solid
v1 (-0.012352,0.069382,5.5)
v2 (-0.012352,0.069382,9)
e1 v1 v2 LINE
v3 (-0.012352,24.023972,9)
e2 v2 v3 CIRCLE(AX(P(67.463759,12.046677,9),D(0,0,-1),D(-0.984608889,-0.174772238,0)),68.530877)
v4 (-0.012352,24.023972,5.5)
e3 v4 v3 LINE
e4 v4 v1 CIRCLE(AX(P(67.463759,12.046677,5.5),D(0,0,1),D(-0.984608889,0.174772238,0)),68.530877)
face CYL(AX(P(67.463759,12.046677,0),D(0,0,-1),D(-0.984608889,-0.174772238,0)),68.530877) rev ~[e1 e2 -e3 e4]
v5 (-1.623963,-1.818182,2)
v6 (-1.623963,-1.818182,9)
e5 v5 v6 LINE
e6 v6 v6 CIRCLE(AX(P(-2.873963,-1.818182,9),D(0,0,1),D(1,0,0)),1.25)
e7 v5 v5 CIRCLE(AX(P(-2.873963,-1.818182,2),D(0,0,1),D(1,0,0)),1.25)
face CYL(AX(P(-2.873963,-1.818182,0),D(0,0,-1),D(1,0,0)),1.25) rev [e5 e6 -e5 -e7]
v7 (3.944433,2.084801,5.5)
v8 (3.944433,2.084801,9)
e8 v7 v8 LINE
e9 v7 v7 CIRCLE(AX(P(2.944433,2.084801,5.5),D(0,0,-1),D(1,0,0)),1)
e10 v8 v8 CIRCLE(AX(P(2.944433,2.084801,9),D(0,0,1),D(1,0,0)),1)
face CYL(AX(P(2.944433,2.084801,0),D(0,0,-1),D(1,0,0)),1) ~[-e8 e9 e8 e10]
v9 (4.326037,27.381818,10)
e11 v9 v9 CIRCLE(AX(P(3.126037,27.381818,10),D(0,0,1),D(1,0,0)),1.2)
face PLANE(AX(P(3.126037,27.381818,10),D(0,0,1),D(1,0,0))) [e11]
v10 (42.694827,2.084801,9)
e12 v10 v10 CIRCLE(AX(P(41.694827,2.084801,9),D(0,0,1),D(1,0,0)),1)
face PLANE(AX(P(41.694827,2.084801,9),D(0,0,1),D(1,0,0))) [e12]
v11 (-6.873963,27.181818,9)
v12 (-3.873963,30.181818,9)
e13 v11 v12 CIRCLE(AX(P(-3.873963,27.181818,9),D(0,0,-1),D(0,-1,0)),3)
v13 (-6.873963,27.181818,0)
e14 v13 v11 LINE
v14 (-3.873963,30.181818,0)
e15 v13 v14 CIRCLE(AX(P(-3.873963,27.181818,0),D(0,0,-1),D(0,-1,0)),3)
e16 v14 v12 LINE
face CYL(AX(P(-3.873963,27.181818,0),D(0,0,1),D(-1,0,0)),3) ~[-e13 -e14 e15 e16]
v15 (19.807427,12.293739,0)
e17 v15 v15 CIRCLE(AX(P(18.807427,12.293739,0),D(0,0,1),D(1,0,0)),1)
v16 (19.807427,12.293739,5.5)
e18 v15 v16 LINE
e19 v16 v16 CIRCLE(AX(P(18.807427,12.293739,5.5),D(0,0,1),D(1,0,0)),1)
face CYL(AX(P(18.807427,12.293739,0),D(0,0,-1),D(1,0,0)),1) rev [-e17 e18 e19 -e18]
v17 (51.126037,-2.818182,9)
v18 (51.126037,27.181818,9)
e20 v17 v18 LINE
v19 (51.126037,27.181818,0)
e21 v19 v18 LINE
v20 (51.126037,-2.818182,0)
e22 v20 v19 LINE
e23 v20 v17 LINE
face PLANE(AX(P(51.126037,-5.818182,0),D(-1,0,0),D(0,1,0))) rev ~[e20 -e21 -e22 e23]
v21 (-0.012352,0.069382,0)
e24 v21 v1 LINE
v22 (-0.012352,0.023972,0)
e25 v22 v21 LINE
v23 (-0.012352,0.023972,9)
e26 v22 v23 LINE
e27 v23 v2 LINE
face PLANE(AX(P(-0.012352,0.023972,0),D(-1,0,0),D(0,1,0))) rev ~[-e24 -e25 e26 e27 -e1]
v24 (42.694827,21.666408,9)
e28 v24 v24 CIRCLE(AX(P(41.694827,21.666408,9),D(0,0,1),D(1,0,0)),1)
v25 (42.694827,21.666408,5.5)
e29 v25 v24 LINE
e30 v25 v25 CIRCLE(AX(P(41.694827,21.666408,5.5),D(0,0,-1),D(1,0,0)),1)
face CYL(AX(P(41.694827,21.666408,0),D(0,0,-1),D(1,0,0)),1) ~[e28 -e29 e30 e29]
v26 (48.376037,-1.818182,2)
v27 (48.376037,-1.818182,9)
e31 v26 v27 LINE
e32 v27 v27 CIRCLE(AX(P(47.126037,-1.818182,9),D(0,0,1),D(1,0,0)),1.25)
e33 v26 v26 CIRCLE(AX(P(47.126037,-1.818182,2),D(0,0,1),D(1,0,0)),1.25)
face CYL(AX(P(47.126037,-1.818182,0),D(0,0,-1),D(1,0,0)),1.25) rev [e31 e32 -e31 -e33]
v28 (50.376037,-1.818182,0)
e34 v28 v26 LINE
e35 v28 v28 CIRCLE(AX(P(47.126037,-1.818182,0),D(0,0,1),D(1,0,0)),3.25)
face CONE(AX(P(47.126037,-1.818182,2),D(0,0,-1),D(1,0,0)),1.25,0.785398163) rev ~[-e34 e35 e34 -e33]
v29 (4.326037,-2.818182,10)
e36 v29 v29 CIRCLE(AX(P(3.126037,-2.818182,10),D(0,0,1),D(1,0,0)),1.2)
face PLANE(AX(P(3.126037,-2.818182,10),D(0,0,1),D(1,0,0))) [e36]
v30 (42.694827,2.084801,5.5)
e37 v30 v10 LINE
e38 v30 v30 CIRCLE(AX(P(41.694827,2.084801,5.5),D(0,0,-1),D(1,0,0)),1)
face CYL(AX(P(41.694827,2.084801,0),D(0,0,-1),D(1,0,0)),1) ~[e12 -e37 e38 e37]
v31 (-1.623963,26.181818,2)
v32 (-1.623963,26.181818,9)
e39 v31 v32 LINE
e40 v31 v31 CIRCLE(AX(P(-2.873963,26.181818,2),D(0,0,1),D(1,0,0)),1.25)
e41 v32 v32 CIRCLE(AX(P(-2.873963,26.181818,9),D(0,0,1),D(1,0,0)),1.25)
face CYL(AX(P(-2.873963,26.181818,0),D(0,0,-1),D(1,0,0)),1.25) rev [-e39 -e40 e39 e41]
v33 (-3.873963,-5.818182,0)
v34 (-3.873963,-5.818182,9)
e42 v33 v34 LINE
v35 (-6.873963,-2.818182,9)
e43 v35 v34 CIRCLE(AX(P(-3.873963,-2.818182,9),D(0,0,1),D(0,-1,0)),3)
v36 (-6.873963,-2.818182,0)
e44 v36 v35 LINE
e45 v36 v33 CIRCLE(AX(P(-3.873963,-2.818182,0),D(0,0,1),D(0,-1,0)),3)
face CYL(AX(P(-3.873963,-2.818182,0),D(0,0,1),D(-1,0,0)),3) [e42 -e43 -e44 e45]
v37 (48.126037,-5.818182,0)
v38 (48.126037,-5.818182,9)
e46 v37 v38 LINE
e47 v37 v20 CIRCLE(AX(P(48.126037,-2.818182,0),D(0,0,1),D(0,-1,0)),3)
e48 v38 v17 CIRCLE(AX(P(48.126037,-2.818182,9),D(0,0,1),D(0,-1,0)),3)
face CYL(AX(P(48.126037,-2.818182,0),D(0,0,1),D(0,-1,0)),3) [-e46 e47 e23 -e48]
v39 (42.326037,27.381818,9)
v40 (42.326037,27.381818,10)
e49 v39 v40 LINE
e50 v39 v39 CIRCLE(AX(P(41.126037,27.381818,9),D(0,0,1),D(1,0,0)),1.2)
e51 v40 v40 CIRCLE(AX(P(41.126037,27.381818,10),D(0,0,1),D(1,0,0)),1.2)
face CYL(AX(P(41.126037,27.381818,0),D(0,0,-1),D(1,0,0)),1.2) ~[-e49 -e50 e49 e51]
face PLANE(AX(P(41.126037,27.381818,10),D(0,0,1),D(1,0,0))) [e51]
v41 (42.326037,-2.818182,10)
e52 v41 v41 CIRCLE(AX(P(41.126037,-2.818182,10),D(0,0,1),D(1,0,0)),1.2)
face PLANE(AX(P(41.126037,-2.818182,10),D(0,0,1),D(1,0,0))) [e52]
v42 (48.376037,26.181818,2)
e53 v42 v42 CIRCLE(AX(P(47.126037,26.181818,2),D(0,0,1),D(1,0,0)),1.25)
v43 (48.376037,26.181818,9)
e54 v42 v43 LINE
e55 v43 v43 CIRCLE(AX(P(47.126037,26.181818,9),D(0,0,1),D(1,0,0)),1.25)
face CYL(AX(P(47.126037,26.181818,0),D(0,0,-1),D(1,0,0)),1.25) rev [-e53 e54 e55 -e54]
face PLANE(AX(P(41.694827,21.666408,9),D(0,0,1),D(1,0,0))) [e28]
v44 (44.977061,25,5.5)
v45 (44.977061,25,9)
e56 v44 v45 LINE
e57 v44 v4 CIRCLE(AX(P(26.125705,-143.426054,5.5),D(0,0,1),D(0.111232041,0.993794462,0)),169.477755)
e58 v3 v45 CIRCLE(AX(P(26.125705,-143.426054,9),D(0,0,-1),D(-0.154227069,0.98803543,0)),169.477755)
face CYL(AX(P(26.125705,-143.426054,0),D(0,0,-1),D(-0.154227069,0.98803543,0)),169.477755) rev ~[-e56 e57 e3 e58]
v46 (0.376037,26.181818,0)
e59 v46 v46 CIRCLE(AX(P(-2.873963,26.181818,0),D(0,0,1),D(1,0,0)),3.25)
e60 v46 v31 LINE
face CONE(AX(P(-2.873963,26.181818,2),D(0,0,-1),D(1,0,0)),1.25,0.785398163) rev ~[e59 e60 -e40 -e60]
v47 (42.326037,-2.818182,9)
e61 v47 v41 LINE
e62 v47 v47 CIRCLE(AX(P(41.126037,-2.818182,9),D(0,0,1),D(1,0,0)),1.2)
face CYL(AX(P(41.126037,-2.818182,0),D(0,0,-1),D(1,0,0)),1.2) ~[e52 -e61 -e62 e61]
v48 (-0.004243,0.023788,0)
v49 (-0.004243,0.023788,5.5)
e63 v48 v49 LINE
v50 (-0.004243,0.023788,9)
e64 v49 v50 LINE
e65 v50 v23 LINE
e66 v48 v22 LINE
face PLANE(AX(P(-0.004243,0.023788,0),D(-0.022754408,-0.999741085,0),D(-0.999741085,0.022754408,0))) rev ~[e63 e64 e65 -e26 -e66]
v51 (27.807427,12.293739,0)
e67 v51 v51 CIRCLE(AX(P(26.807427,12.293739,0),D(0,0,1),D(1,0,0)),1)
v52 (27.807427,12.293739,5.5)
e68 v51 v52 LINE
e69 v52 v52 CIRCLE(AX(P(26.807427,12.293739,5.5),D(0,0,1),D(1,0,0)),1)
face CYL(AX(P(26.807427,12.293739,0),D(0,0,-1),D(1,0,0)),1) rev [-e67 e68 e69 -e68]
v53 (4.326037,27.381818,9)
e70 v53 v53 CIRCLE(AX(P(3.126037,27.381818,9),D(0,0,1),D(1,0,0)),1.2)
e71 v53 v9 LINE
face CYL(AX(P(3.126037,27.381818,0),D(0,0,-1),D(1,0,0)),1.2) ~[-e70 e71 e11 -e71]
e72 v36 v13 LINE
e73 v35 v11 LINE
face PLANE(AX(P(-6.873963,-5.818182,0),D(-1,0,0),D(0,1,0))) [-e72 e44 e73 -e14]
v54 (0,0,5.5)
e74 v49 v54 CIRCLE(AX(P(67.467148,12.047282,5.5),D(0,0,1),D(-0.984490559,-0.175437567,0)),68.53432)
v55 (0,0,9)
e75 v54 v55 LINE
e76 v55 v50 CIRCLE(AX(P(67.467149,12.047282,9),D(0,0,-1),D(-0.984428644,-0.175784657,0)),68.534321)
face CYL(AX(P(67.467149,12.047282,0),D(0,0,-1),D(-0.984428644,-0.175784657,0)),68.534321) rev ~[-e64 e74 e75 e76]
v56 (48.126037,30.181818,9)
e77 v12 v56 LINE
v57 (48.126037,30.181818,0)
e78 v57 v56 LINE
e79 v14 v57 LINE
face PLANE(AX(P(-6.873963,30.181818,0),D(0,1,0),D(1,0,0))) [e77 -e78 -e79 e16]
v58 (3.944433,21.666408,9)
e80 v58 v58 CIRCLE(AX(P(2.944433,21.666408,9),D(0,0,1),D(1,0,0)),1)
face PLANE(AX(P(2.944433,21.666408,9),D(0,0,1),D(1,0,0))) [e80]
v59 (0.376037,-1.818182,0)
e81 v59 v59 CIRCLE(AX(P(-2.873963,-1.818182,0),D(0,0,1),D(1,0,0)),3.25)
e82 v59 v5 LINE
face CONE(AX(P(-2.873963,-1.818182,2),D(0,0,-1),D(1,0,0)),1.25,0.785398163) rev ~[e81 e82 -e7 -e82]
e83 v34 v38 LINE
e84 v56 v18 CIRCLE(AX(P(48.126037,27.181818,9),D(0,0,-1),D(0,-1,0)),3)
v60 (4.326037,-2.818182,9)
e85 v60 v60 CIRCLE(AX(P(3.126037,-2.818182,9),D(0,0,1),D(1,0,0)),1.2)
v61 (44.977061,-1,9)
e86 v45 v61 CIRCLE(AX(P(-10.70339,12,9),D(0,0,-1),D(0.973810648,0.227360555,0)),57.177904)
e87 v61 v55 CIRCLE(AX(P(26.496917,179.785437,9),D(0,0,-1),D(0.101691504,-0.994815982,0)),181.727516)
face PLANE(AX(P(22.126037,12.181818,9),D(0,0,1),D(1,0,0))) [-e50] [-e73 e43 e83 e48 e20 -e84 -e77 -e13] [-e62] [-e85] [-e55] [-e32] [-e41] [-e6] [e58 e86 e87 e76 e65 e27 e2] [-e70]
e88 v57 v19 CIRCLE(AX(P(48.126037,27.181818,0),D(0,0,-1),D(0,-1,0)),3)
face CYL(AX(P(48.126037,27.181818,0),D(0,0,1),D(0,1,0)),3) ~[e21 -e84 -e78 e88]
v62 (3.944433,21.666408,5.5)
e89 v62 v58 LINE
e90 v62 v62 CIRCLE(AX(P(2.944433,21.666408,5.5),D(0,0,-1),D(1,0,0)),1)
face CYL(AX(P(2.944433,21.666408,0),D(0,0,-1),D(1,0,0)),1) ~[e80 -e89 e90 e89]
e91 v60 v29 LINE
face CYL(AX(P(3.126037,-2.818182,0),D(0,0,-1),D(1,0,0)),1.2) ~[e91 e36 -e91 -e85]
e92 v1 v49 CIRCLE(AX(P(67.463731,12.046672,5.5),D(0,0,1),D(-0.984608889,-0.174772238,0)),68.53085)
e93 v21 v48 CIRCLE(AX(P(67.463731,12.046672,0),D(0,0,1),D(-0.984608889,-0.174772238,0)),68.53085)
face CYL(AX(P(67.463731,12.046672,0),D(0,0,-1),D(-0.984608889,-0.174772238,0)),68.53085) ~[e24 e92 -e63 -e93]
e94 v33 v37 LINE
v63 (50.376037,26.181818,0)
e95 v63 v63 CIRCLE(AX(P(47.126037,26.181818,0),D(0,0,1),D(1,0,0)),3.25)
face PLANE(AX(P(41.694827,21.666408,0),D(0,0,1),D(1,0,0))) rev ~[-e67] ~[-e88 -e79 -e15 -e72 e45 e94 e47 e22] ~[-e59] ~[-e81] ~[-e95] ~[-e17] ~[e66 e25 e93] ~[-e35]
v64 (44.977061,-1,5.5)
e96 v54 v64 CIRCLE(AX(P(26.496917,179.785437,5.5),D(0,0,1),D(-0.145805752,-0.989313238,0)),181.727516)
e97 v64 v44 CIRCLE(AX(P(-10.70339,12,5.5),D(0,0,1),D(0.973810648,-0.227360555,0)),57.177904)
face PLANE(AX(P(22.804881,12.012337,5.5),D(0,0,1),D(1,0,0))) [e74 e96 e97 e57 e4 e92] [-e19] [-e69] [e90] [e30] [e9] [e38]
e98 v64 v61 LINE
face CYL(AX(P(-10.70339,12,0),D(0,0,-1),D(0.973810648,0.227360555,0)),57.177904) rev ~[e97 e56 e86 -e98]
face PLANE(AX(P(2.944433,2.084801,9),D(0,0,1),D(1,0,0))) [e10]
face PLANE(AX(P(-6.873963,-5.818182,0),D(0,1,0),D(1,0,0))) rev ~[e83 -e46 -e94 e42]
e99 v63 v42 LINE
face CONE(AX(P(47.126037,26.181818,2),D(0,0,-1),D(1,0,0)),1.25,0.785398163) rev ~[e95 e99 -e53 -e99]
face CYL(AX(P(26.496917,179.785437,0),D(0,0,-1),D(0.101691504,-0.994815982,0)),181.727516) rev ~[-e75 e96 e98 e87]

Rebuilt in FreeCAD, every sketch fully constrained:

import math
import FreeCAD as App
import Part
import Sketcher


def edges_at(feature, points):
    """Names of the edges that pass closest to the given points."""
    edges = feature.Shape.Edges
    near = lambda p: min(range(len(edges)), key=lambda i: edges[i].distToShape(Part.Vertex(*p))[0])
    return sorted({f"Edge{near(p) + 1}" for p in points})


def add_polygon(sketch, points):
    """Adds a closed chain of lines whose ends are joined by coincident constraints."""
    first, n = sketch.GeometryCount, len(points)
    for a, b in zip(points, points[1:] + points[:1]):
        sketch.addGeometry(Part.LineSegment(App.Vector(*a, 0), App.Vector(*b, 0)), False)
    for i in range(n):
        sketch.addConstraint(Sketcher.Constraint("Coincident", first + i, 2, first + (i + 1) % n, 1))

doc = App.newDocument("Part")
params = doc.addObject("Spreadsheet::Sheet", "Params")
for row, (alias, value) in enumerate([
    ("sketch1_diameter", "2.5 mm"),
    ("sketch1_diameter2", "2.4 mm"),
    ("sketch1_width", "58 mm"),
    ("sketch1_height", "36 mm"),
    ("pad1_length", "9 mm"),
    ("sketch2_diameter", "2 mm"),
    ("pad2_length", "5.5 mm"),
    ("sketch3_diameter", "2 mm"),
    ("pad3_length", "9 mm"),
    ("fillet_radius", "3 mm"),
    ("chamfer_size", "2 mm"),
    ("sketch4_diameter", "2.4 mm"),
    ("pad4_length", "10 mm"),
], start=1):
    params.set(f"A{row}", alias)
    params.set(f"B{row}", "=" + value)
    params.setAlias(f"B{row}", alias)

body = doc.addObject("PartDesign::Body", "Body")

sketch1 = body.newObject("Sketcher::SketchObject", "Sketch")
sketch1.AttachmentSupport = (doc.getObject("XY_Plane"), [""])
sketch1.MapMode = "FlatFace"
add_polygon(sketch1, [(-6.873963, 30.181818), (-6.873963, -5.818182), (51.126037, -5.818182), (51.126037, 30.181818)])
sketch1.addGeometry(Part.Circle(App.Vector(-2.873963, -1.818182, 0), App.Vector(0, 0, 1), 1.25), False)
sketch1.addGeometry(Part.Circle(App.Vector(3.126037, -2.818182, 0), App.Vector(0, 0, 1), 1.2), False)
sketch1.addGeometry(Part.Circle(App.Vector(41.126037, -2.818182, 0), App.Vector(0, 0, 1), 1.2), False)
sketch1.addGeometry(Part.Circle(App.Vector(47.126037, -1.818182, 0), App.Vector(0, 0, 1), 1.25), False)
sketch1.addGeometry(Part.ArcOfCircle(Part.Circle(App.Vector(67.467149, 12.047282, 0), App.Vector(0, 0, 1), 68.534321), math.radians(-169.895877), math.radians(-169.875676)), False)
sketch1.addGeometry(Part.LineSegment(App.Vector(-0.004243, 0.023788, 0), App.Vector(-0.012352, 0.023972, 0)), False)
sketch1.addGeometry(Part.LineSegment(App.Vector(-0.012352, 0.023972, 0), App.Vector(-0.012352, 0.069382, 0)), False)
sketch1.addGeometry(Part.ArcOfCircle(Part.Circle(App.Vector(67.463759, 12.046677, 0), App.Vector(0, 0, 1), 68.530877), math.radians(169.934596), math.radians(190.065404)), False)
sketch1.addGeometry(Part.ArcOfCircle(Part.Circle(App.Vector(26.125705, -143.426054, 0), App.Vector(0, 0, 1), 169.477755), math.radians(83.613658), math.radians(98.871972)), False)
sketch1.addGeometry(Part.ArcOfCircle(Part.Circle(App.Vector(-10.70339, 12, 0), App.Vector(0, 0, 1), 57.177904), math.radians(-13.141726), math.radians(13.141726)), False)
sketch1.addGeometry(Part.ArcOfCircle(Part.Circle(App.Vector(26.496917, 179.785437, 0), App.Vector(0, 0, 1), 181.727516), math.radians(-98.383941), math.radians(-84.163417)), False)
sketch1.addGeometry(Part.Circle(App.Vector(-2.873963, 26.181818, 0), App.Vector(0, 0, 1), 1.25), False)
sketch1.addGeometry(Part.Circle(App.Vector(3.126037, 27.381818, 0), App.Vector(0, 0, 1), 1.2), False)
sketch1.addGeometry(Part.Circle(App.Vector(41.126037, 27.381818, 0), App.Vector(0, 0, 1), 1.2), False)
sketch1.addGeometry(Part.Circle(App.Vector(47.126037, 26.181818, 0), App.Vector(0, 0, 1), 1.25), False)
sketch1.addConstraint([
    Sketcher.Constraint("Coincident", 8, 1, 9, 1),
    Sketcher.Constraint("Coincident", 9, 2, 10, 1),
    Sketcher.Constraint("Coincident", 10, 2, 11, 2),
    Sketcher.Constraint("Coincident", 11, 1, 12, 2),
    Sketcher.Constraint("Coincident", 12, 1, 13, 2),
    Sketcher.Constraint("Coincident", 13, 1, 14, 2),
    Sketcher.Constraint("Coincident", 14, 1, 8, 2),
    Sketcher.Constraint("Vertical", 0),
    Sketcher.Constraint("Horizontal", 1),
    Sketcher.Constraint("Vertical", 2),
    Sketcher.Constraint("Horizontal", 3),
    Sketcher.Constraint("Vertical", 10),
    Sketcher.Constraint("Coincident", 14, 1, -1, 1),
    Sketcher.Constraint("Equal", 5, 6),
    Sketcher.Constraint("Equal", 4, 7),
    Sketcher.Constraint("Equal", 7, 15),
    Sketcher.Constraint("Equal", 6, 16),
    Sketcher.Constraint("Equal", 16, 17),
    Sketcher.Constraint("Equal", 15, 18),
    Sketcher.Constraint("Horizontal", 5, 3, 6, 3),
    Sketcher.Constraint("Horizontal", 4, 3, 7, 3),
    Sketcher.Constraint("Horizontal", 16, 3, 17, 3),
    Sketcher.Constraint("Horizontal", 15, 3, 18, 3),
    Sketcher.Constraint("Vertical", 4, 3, 15, 3),
    Sketcher.Constraint("Vertical", 5, 3, 16, 3),
    Sketcher.Constraint("Vertical", 6, 3, 17, 3),
    Sketcher.Constraint("Vertical", 7, 3, 18, 3),
    Sketcher.Constraint("Vertical", 10, 2, 11, 1),
    Sketcher.Constraint("Vertical", 12, 1, 13, 1),
    Sketcher.Constraint("Diameter", 4, 2.5),
    Sketcher.Constraint("Diameter", 5, 2.4),
    Sketcher.Constraint("DistanceX", 1, 1, 1, 2, 58.0),
    Sketcher.Constraint("DistanceY", 0, 2, 0, 1, 36.0),
    Sketcher.Constraint("DistanceY", -1, 1, 13, 3, 12.0),
    Sketcher.Constraint("DistanceY", -1, 1, 12, 1, 25.0),
    Sketcher.Constraint("DistanceX", 4, 3, 5, 3, 6.0),
    Sketcher.Constraint("DistanceY", 5, 3, 4, 3, 1.0),
    Sketcher.Constraint("DistanceX", 5, 3, 6, 3, 38.0),
    Sketcher.Constraint("DistanceX", 6, 3, 7, 3, 6.0),
    Sketcher.Constraint("DistanceY", 4, 3, 15, 3, 28.0),
    Sketcher.Constraint("DistanceX", 0, 2, 4, 3, 4.0),
    Sketcher.Constraint("DistanceY", 0, 2, 4, 3, 4.0),
    Sketcher.Constraint("DistanceY", 15, 3, 16, 3, 1.2),
    Sketcher.Constraint("Radius", 8, 68.534321),
    Sketcher.Constraint("Radius", 11, 68.530877),
    Sketcher.Constraint("Radius", 12, 169.477755),
    Sketcher.Constraint("Radius", 13, 57.177904),
    Sketcher.Constraint("Radius", 14, 181.727516),
    Sketcher.Constraint("DistanceY", 10, 1, 10, 2, 0.04541),
    Sketcher.Constraint("Distance", 9, 0.008111),
    Sketcher.Constraint("DistanceY", 4, 3, -1, 1, 1.818182),
    Sketcher.Constraint("DistanceX", -1, 1, 8, 3, 67.467149),
    Sketcher.Constraint("DistanceX", -1, 1, 11, 3, 67.463759),
    Sketcher.Constraint("DistanceX", 13, 3, -1, 1, 10.70339),
    Sketcher.Constraint("DistanceX", 7, 3, 8, 3, 20.341112),
    Sketcher.Constraint("DistanceY", 7, 3, 11, 3, 13.864859),
    Sketcher.Constraint("DistanceY", 12, 3, 11, 3, 155.472732),
])
sketch1.setExpression("Constraints[33]", "Params.sketch1_diameter")
sketch1.setExpression("Constraints[34]", "Params.sketch1_diameter2")
sketch1.setExpression("Constraints[35]", "Params.sketch1_width")
sketch1.setExpression("Constraints[36]", "Params.sketch1_height")
pad1 = body.newObject("PartDesign::Pad", "Pad")
pad1.Profile = sketch1
pad1.setExpression("Length", "Params.pad1_length")

sketch2 = body.newObject("Sketcher::SketchObject", "Sketch001")
sketch2.AttachmentSupport = (doc.getObject("XY_Plane"), [""])
sketch2.MapMode = "FlatFace"
sketch2.addGeometry([
    Part.ArcOfCircle(Part.Circle(App.Vector(67.463731, 12.046672, 0), App.Vector(0, 0, 1), 68.53085), math.radians(-169.934596), math.radians(-169.895878)),
    Part.ArcOfCircle(Part.Circle(App.Vector(67.467148, 12.047282, 0), App.Vector(0, 0, 1), 68.53432), math.radians(-169.895877), math.radians(-169.875676)),
    Part.ArcOfCircle(Part.Circle(App.Vector(26.496917, 179.785437, 0), App.Vector(0, 0, 1), 181.727516), math.radians(-98.383941), math.radians(-84.163417)),
    Part.ArcOfCircle(Part.Circle(App.Vector(-10.70339, 12, 0), App.Vector(0, 0, 1), 57.177904), math.radians(-13.141726), math.radians(13.141726)),
    Part.ArcOfCircle(Part.Circle(App.Vector(26.125705, -143.426054, 0), App.Vector(0, 0, 1), 169.477755), math.radians(83.613658), math.radians(98.871972)),
    Part.ArcOfCircle(Part.Circle(App.Vector(67.463759, 12.046677, 0), App.Vector(0, 0, 1), 68.530877), math.radians(169.934596), math.radians(190.065404)),
    Part.Circle(App.Vector(18.807427, 12.293739, 0), App.Vector(0, 0, 1), 1),
    Part.Circle(App.Vector(26.807427, 12.293739, 0), App.Vector(0, 0, 1), 1),
], False)
sketch2.addConstraint([
    Sketcher.Constraint("Tangent", 0, 2, 1, 1),
    Sketcher.Constraint("Coincident", 1, 2, 2, 1),
    Sketcher.Constraint("Coincident", 2, 2, 3, 1),
    Sketcher.Constraint("Coincident", 3, 2, 4, 1),
    Sketcher.Constraint("Coincident", 4, 2, 5, 1),
    Sketcher.Constraint("Tangent", 5, 2, 0, 1),
    Sketcher.Constraint("Coincident", 1, 2, -1, 1),
    Sketcher.Constraint("Equal", 6, 7),
    Sketcher.Constraint("Horizontal", 6, 3, 7, 3),
    Sketcher.Constraint("Vertical", 2, 2, 3, 2),
    Sketcher.Constraint("Vertical", 4, 2, 5, 2),
    Sketcher.Constraint("Diameter", 6, 2.0),
    Sketcher.Constraint("DistanceY", -1, 1, 3, 3, 12.0),
    Sketcher.Constraint("DistanceY", 2, 2, -1, 1, 1.0),
    Sketcher.Constraint("DistanceX", 6, 3, 7, 3, 8.0),
    Sketcher.Constraint("Radius", 0, 68.53085),
    Sketcher.Constraint("Radius", 1, 68.53432),
    Sketcher.Constraint("Radius", 2, 181.727516),
    Sketcher.Constraint("Radius", 3, 57.177904),
    Sketcher.Constraint("Radius", 4, 169.477755),
    Sketcher.Constraint("Radius", 5, 68.530877),
    Sketcher.Constraint("DistanceX", 0, 2, 5, 3, 67.468002),
    Sketcher.Constraint("DistanceX", -1, 1, 0, 3, 67.463731),
    Sketcher.Constraint("DistanceX", 3, 3, -1, 1, 10.70339),
    Sketcher.Constraint("DistanceY", -1, 1, 6, 3, 12.293739),
    Sketcher.Constraint("DistanceY", 4, 3, 2, 3, 323.211491),
    Sketcher.Constraint("DistanceX", 6, 3, 5, 3, 48.656332),
])
sketch2.setExpression("Constraints[11]", "Params.sketch2_diameter")
pad2 = body.newObject("PartDesign::Pad", "Pad001")
pad2.Profile = sketch2
pad2.setExpression("Length", "Params.pad2_length")

sketch3 = body.newObject("Sketcher::SketchObject", "Sketch002")
sketch3.AttachmentSupport = (doc.getObject("XY_Plane"), [""])
sketch3.MapMode = "FlatFace"
sketch3.addGeometry([
    Part.Circle(App.Vector(41.694827, 21.666408, 0), App.Vector(0, 0, 1), 1),
    Part.Circle(App.Vector(2.944433, 21.666408, 0), App.Vector(0, 0, 1), 1),
    Part.Circle(App.Vector(2.944433, 2.084801, 0), App.Vector(0, 0, 1), 1),
    Part.Circle(App.Vector(41.694827, 2.084801, 0), App.Vector(0, 0, 1), 1),
], False)
sketch3.addConstraint([
    Sketcher.Constraint("Equal", 0, 1),
    Sketcher.Constraint("Equal", 1, 2),
    Sketcher.Constraint("Equal", 2, 3),
    Sketcher.Constraint("Horizontal", 0, 3, 1, 3),
    Sketcher.Constraint("Horizontal", 2, 3, 3, 3),
    Sketcher.Constraint("Vertical", 1, 3, 2, 3),
    Sketcher.Constraint("Vertical", 0, 3, 3, 3),
    Sketcher.Constraint("Diameter", 0, 2.0),
    Sketcher.Constraint("DistanceY", -1, 1, 2, 3, 2.084801),
    Sketcher.Constraint("DistanceX", -1, 1, 0, 3, 41.694827),
    Sketcher.Constraint("DistanceY", -1, 1, 0, 3, 21.666408),
    Sketcher.Constraint("DistanceX", -1, 1, 1, 3, 2.944433),
])
sketch3.setExpression("Constraints[7]", "Params.sketch3_diameter")
pad3 = body.newObject("PartDesign::Pad", "Pad002")
pad3.Profile = sketch3
pad3.setExpression("Length", "Params.pad3_length")
doc.recompute()

fillet = body.newObject("PartDesign::Fillet", "Fillet")
fillet.Base = (pad3, edges_at(pad3, [
    (51.126, 30.182, 4.5),
    (51.126, -5.818, 4.5),
    (-6.874, -5.818, 4.5),
    (-6.874, 30.182, 4.5),
]))
fillet.setExpression("Radius", "Params.fillet_radius")
doc.recompute()

chamfer = body.newObject("PartDesign::Chamfer", "Chamfer")
chamfer.Base = (fillet, edges_at(fillet, [
    (-4.124, -1.818, 0),
    (-4.124, 26.182, 0),
    (45.876, -1.818, 0),
    (45.876, 26.182, 0),
]))
chamfer.setExpression("Size", "Params.chamfer_size")

sketch4 = body.newObject("Sketcher::SketchObject", "Sketch003")
sketch4.AttachmentSupport = (doc.getObject("XY_Plane"), [""])
sketch4.MapMode = "FlatFace"
sketch4.addGeometry([
    Part.Circle(App.Vector(3.126037, 27.381818, 0), App.Vector(0, 0, 1), 1.2),
    Part.Circle(App.Vector(3.126037, -2.818182, 0), App.Vector(0, 0, 1), 1.2),
    Part.Circle(App.Vector(41.126037, -2.818182, 0), App.Vector(0, 0, 1), 1.2),
    Part.Circle(App.Vector(41.126037, 27.381818, 0), App.Vector(0, 0, 1), 1.2),
], False)
sketch4.addConstraint([
    Sketcher.Constraint("Equal", 0, 1),
    Sketcher.Constraint("Equal", 1, 2),
    Sketcher.Constraint("Equal", 2, 3),
    Sketcher.Constraint("Horizontal", 1, 3, 2, 3),
    Sketcher.Constraint("Horizontal", 0, 3, 3, 3),
    Sketcher.Constraint("Vertical", 0, 3, 1, 3),
    Sketcher.Constraint("Vertical", 2, 3, 3, 3),
    Sketcher.Constraint("Diameter", 0, 2.4),
    Sketcher.Constraint("DistanceX", 1, 3, 2, 3, 38.0),
    Sketcher.Constraint("DistanceY", 1, 3, 0, 3, 30.2),
    Sketcher.Constraint("DistanceY", -1, 1, 0, 3, 27.381818),
    Sketcher.Constraint("DistanceX", -1, 1, 0, 3, 3.126037),
])
sketch4.setExpression("Constraints[7]", "Params.sketch4_diameter")
pad4 = body.newObject("PartDesign::Pad", "Pad003")
pad4.Profile = sketch4
pad4.setExpression("Length", "Params.pad4_length")

doc.recompute()
